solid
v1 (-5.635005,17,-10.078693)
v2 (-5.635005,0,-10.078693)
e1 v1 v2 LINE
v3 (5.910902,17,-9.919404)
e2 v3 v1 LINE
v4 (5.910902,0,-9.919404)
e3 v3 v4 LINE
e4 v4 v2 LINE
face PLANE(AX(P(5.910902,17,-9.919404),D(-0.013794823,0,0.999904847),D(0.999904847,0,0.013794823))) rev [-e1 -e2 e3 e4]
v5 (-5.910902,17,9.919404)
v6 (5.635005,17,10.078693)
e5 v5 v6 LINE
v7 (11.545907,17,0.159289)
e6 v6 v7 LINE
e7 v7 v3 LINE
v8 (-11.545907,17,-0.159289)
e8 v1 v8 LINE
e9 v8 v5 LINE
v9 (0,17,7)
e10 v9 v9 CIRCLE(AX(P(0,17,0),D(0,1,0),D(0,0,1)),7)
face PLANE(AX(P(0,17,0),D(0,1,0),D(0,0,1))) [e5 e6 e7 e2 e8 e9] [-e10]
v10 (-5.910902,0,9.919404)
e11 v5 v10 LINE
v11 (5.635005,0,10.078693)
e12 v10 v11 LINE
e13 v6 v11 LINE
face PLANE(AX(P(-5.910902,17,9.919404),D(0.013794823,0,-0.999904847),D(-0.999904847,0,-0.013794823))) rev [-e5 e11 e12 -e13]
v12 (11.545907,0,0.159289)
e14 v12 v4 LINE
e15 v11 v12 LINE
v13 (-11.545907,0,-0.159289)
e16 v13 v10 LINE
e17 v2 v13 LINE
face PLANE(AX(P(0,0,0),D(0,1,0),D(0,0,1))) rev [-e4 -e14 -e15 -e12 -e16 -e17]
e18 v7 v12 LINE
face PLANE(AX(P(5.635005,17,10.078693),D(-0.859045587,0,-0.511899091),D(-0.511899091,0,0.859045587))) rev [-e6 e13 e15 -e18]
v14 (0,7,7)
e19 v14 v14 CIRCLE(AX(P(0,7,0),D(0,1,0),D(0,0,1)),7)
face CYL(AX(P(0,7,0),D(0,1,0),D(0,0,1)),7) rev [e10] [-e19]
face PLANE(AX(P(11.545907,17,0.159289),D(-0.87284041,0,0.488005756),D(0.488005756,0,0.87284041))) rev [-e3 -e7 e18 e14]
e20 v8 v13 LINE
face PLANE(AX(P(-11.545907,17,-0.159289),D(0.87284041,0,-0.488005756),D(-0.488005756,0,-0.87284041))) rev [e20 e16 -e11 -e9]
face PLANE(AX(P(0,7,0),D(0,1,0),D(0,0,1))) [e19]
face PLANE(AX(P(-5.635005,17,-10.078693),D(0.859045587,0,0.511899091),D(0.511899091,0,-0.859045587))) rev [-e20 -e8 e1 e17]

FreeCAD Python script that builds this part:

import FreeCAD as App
import Part
import Sketcher
from FreeCAD import Vector


def add_polygon(sketch, points):
    """Adds a closed chain of lines whose ends are joined by coincident constraints."""
    first, n = sketch.GeometryCount, len(points)
    for a, b in zip(points, points[1:] + points[:1]):
        sketch.addGeometry(Part.LineSegment(App.Vector(*a, 0), App.Vector(*b, 0)), False)
    for i in range(n):
        sketch.addConstraint(Sketcher.Constraint("Coincident", first + i, 2, first + (i + 1) % n, 1))

doc = App.newDocument("Part")
body = doc.addObject("PartDesign::Body", "Body")

# Sketch on XZ plane
sketch1 = body.newObject("Sketcher::SketchObject", "Sketch")
sketch1.AttachmentSupport = (doc.getObject("XZ_Plane"), [""])
sketch1.MapMode = "FlatFace"
add_polygon(sketch1, [(6, 10), (12, 0), (6, -10), (-6, -10), (-12, 0), (-6, 10)])  # lines 0-5
sketch1.addConstraint(Sketcher.Constraint("Symmetric", 0, 2, 3, 2, -1, 1))
sketch1.addConstraint(Sketcher.Constraint("Symmetric", 1, 2, 4, 2, -1, 1))
sketch1.addConstraint(Sketcher.Constraint("Symmetric", 2, 2, 5, 2, -1, 1))
sketch1.addConstraint(Sketcher.Constraint("Equal", 0, 1))
sketch1.addConstraint(Sketcher.Constraint("Equal", 1, 2))
sketch1.addConstraint(Sketcher.Constraint("DistanceX", -1, 1, 1, 2, 5.910902))
sketch1.addConstraint(Sketcher.Constraint("DistanceX", 3, 2, 2, 2, 5.910902))
sketch1.addConstraint(Sketcher.Constraint("DistanceY", -1, 1, 0, 2, 0.159289))
sketch1.addConstraint(Sketcher.Constraint("DistanceY", 2, 2, 1, 2, 0.159289))
pad1 = body.newObject("PartDesign::Pad", "Pad")
pad1.Profile = sketch1
pad1.Length = 17
pad1.Reversed = True

# Sketch on XZ plane
sketch2 = body.newObject("Sketcher::SketchObject", "Sketch001")
sketch2.AttachmentSupport = (doc.getObject("XZ_Plane"), [""])
sketch2.MapMode = "FlatFace"
sketch2.AttachmentOffset = App.Placement(Vector(0, 0, -17), App.Rotation())
sketch2.addGeometry(Part.Circle(Vector(0, 0, 0), Vector(0, 0, 1), 7), False)
sketch2.addConstraint(Sketcher.Constraint("Coincident", 0, 3, -1, 1))
sketch2.addConstraint(Sketcher.Constraint("Diameter", 0, 14.0))
pocket1 = body.newObject("PartDesign::Pocket", "Pocket")
pocket1.Profile = sketch2
pocket1.Length = 10
pocket1.Reversed = True

doc.recompute()
